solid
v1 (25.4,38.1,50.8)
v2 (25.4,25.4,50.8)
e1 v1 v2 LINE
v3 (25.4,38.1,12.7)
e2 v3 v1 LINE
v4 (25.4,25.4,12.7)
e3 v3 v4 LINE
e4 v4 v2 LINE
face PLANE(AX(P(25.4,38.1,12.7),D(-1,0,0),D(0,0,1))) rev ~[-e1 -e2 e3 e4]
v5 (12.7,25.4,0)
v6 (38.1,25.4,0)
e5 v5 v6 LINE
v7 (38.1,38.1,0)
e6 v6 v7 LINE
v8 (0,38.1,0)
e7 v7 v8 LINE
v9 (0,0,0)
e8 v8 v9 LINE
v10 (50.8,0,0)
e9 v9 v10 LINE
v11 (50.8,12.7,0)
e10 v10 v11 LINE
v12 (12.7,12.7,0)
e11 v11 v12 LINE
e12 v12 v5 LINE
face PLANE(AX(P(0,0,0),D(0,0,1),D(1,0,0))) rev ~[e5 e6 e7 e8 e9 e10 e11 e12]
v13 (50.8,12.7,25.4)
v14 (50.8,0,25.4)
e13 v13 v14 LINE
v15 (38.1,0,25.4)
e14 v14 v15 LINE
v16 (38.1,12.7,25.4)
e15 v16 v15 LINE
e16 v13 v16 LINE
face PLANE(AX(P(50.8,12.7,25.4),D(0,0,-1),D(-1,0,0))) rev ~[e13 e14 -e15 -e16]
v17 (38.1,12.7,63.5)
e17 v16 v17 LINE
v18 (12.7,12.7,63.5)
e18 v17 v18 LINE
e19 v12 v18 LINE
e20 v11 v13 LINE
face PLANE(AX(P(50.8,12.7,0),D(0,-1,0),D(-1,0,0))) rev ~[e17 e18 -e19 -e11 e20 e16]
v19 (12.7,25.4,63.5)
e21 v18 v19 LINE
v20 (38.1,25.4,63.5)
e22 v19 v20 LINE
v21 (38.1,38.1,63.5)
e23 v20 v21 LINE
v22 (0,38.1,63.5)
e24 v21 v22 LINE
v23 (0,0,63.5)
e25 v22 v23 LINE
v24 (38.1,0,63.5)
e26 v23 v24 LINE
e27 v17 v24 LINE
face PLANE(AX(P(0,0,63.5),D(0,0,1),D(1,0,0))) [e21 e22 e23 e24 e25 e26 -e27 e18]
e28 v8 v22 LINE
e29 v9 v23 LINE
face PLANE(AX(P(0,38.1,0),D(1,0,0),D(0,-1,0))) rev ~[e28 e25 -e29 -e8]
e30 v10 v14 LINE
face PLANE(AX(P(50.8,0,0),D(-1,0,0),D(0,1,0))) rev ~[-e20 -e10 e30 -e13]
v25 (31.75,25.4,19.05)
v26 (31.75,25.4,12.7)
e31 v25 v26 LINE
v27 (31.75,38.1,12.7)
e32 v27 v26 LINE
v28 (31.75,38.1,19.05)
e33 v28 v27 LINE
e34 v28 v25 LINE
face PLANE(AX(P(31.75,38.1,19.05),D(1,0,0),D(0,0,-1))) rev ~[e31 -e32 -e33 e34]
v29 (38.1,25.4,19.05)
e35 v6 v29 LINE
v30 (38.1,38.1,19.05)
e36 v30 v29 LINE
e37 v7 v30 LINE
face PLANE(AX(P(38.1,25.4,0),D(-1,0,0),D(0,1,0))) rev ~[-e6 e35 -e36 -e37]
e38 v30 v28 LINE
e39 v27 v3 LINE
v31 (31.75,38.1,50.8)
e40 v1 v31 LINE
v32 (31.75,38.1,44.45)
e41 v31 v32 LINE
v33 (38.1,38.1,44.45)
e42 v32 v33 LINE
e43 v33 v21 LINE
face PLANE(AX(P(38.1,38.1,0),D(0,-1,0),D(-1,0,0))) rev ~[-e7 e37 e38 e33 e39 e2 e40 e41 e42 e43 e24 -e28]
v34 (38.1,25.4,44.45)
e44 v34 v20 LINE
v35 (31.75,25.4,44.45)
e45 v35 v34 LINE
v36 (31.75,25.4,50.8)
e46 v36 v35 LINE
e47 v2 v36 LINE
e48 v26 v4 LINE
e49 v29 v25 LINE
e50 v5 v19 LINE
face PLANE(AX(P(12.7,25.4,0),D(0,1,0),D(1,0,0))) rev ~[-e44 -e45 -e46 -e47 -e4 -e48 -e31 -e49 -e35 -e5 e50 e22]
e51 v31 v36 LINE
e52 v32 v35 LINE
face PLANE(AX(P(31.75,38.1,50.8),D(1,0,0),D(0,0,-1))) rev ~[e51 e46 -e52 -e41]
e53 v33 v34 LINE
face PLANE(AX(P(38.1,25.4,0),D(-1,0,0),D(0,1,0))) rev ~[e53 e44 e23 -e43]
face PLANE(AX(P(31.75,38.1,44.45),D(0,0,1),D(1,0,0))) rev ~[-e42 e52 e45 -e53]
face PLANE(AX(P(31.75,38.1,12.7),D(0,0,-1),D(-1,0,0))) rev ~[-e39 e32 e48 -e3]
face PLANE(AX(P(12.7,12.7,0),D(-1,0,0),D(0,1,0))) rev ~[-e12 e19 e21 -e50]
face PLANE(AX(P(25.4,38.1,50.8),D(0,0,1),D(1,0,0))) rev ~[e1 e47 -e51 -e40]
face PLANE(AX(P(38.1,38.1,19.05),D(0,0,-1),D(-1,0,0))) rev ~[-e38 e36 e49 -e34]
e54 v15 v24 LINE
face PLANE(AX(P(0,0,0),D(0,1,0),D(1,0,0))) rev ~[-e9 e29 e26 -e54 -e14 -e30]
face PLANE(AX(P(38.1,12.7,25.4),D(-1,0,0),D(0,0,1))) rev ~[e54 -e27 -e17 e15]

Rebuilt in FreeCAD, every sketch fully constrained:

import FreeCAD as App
import Part
import Sketcher
from FreeCAD import Vector
Q = App.Units.Quantity

doc = App.newDocument("Part")
params = doc.addObject("Spreadsheet::Sheet", "Params")
for row, (alias, value) in enumerate([
    ("sketch1_width", "2 in"),
    ("sketch1_width2", "1 in"),
    ("pad1_length", "2.5 in"),
    ("sketch2_width", "0.5 in"),
    ("sketch2_height", "1.5 in"),
    ("pocket1_length", "0.5 in"),
    ("sketch3_height", "1 in"),
    ("sketch3_height2", "1.5 in"),
    ("pocket2_length", "0.5 in"),
], start=1):
    params.set(f"A{row}", alias)
    params.set(f"B{row}", "=" + value)
    params.setAlias(f"B{row}", alias)

body = doc.addObject("PartDesign::Body", "Body")

# Sketch on XY plane
sketch1 = doc.addObject("Sketcher::SketchObject", "Sketch")
body.addObject(sketch1)
sketch1.AttachmentSupport = (doc.XY_Plane, [""])
sketch1.MapMode = "FlatFace"
sketch1.addGeometry([
    Part.LineSegment(Vector(0, 38, 0), Vector(0, 0, 0)),  # 0
    Part.LineSegment(Vector(0, 0, 0), Vector(51, 0, 0)),  # 1
    Part.LineSegment(Vector(51, 0, 0), Vector(51, 13, 0)),  # 2
    Part.LineSegment(Vector(51, 13, 0), Vector(13, 13, 0)),  # 3
    Part.LineSegment(Vector(13, 13, 0), Vector(13, 25, 0)),  # 4
    Part.LineSegment(Vector(13, 25, 0), Vector(38, 25, 0)),  # 5
    Part.LineSegment(Vector(38, 25, 0), Vector(38, 38, 0)),  # 6
    Part.LineSegment(Vector(38, 38, 0), Vector(0, 38, 0)),  # 7
], False)
sketch1.addConstraint([
    Sketcher.Constraint("Coincident", 0, 2, 1, 1),
    Sketcher.Constraint("Coincident", 1, 2, 2, 1),
    Sketcher.Constraint("Coincident", 2, 2, 3, 1),
    Sketcher.Constraint("Coincident", 3, 2, 4, 1),
    Sketcher.Constraint("Coincident", 4, 2, 5, 1),
    Sketcher.Constraint("Coincident", 5, 2, 6, 1),
    Sketcher.Constraint("Coincident", 6, 2, 7, 1),
    Sketcher.Constraint("Coincident", 7, 2, 0, 1),
    Sketcher.Constraint("Vertical", 0),
    Sketcher.Constraint("Horizontal", 1),
    Sketcher.Constraint("Vertical", 2),
    Sketcher.Constraint("Horizontal", 3),
    Sketcher.Constraint("Vertical", 4),
    Sketcher.Constraint("Horizontal", 5),
    Sketcher.Constraint("Vertical", 6),
    Sketcher.Constraint("Horizontal", 7),
    Sketcher.Constraint("Coincident", 0, 2, -1, 1),
    Sketcher.Constraint("Equal", 3, 7),
    Sketcher.Constraint("Equal", 7, 0),
    Sketcher.Constraint("Equal", 2, 4),
    Sketcher.Constraint("Equal", 4, 6),
    Sketcher.Constraint("DistanceX", 1, 1, 1, 2, Q("2 in")),
    Sketcher.Constraint("DistanceX", 5, 1, 5, 2, Q("1 in")),
])
sketch1.setExpression("Constraints[21]", "Params.sketch1_width")
sketch1.setExpression("Constraints[22]", "Params.sketch1_width2")
pad1 = doc.addObject("PartDesign::Pad", "Pad")
body.addObject(pad1)
pad1.Profile = sketch1
pad1.setExpression("Length", "Params.pad1_length")

# Sketch on XZ plane
sketch2 = doc.addObject("Sketcher::SketchObject", "Sketch001")
body.addObject(sketch2)
sketch2.AttachmentSupport = (doc.XZ_Plane, [""])
sketch2.MapMode = "FlatFace"
sketch2.AttachmentOffset = App.Placement(Vector(0, 0, -0.5 * 25.4), App.Rotation())
sketch2.addGeometry([
    Part.LineSegment(Vector(51, 64, 0), Vector(51, 25, 0)),
    Part.LineSegment(Vector(51, 25, 0), Vector(38, 25, 0)),
    Part.LineSegment(Vector(38, 25, 0), Vector(38, 64, 0)),
    Part.LineSegment(Vector(38, 64, 0), Vector(51, 64, 0)),
], False)
sketch2.addConstraint([
    Sketcher.Constraint("Coincident", 0, 2, 1, 1),
    Sketcher.Constraint("Coincident", 1, 2, 2, 1),
    Sketcher.Constraint("Coincident", 2, 2, 3, 1),
    Sketcher.Constraint("Coincident", 3, 2, 0, 1),
    Sketcher.Constraint("Vertical", 0),
    Sketcher.Constraint("Horizontal", 1),
    Sketcher.Constraint("Vertical", 2),
    Sketcher.Constraint("Horizontal", 3),
    Sketcher.Constraint("DistanceX", 1, 2, 1, 1, Q("0.5 in")),
    Sketcher.Constraint("DistanceY", 0, 2, 0, 1, Q("1.5 in")),
    Sketcher.Constraint("DistanceX", -1, 1, 0, 2, Q("2 in")),
    Sketcher.Constraint("DistanceY", -1, 1, 0, 2, Q("1 in")),
])
sketch2.setExpression("Constraints[8]", "Params.sketch2_width")
sketch2.setExpression("Constraints[9]", "Params.sketch2_height")
pocket1 = doc.addObject("PartDesign::Pocket", "Pocket")
body.addObject(pocket1)
pocket1.Profile = sketch2
pocket1.setExpression("Length", "Params.pocket1_length")
pocket1.Reversed = True

# Sketch on XZ plane
sketch3 = doc.addObject("Sketcher::SketchObject", "Sketch002")
body.addObject(sketch3)
sketch3.AttachmentSupport = (doc.XZ_Plane, [""])
sketch3.MapMode = "FlatFace"
sketch3.AttachmentOffset = App.Placement(Vector(0, 0, -1.5 * 25.4), App.Rotation())
sketch3.addGeometry([
    Part.LineSegment(Vector(38, 44, 0), Vector(38, 19, 0)),  # 0
    Part.LineSegment(Vector(38, 19, 0), Vector(32, 19, 0)),  # 1
    Part.LineSegment(Vector(32, 19, 0), Vector(32, 13, 0)),  # 2
    Part.LineSegment(Vector(32, 13, 0), Vector(25, 13, 0)),  # 3
    Part.LineSegment(Vector(25, 13, 0), Vector(25, 51, 0)),  # 4
    Part.LineSegment(Vector(25, 51, 0), Vector(32, 51, 0)),  # 5
    Part.LineSegment(Vector(32, 51, 0), Vector(32, 44, 0)),  # 6
    Part.LineSegment(Vector(32, 44, 0), Vector(38, 44, 0)),  # 7
], False)
sketch3.addConstraint([
    Sketcher.Constraint("Coincident", 0, 2, 1, 1),
    Sketcher.Constraint("Coincident", 1, 2, 2, 1),
    Sketcher.Constraint("Coincident", 2, 2, 3, 1),
    Sketcher.Constraint("Coincident", 3, 2, 4, 1),
    Sketcher.Constraint("Coincident", 4, 2, 5, 1),
    Sketcher.Constraint("Coincident", 5, 2, 6, 1),
    Sketcher.Constraint("Coincident", 6, 2, 7, 1),
    Sketcher.Constraint("Coincident", 7, 2, 0, 1),
    Sketcher.Constraint("Vertical", 0),
    Sketcher.Constraint("Horizontal", 1),
    Sketcher.Constraint("Vertical", 2),
    Sketcher.Constraint("Horizontal", 3),
    Sketcher.Constraint("Vertical", 4),
    Sketcher.Constraint("Horizontal", 5),
    Sketcher.Constraint("Vertical", 6),
    Sketcher.Constraint("Horizontal", 7),
    Sketcher.Constraint("Vertical", 2, 2, 5, 2),
    Sketcher.Constraint("Equal", 1, 3),
    Sketcher.Constraint("Equal", 7, 2),
    Sketcher.Constraint("Equal", 2, 6),
    Sketcher.Constraint("DistanceY", 0, 2, 0, 1, Q("1 in")),
    Sketcher.Constraint("DistanceY", 4, 1, 4, 2, Q("1.5 in")),
    Sketcher.Constraint("DistanceX", -1, 1, 3, 2, Q("1 in")),
    Sketcher.Constraint("DistanceY", -1, 1, 4, 2, Q("2 in")),
])
sketch3.setExpression("Constraints[20]", "Params.sketch3_height")
sketch3.setExpression("Constraints[21]", "Params.sketch3_height2")
pocket2 = doc.addObject("PartDesign::Pocket", "Pocket001")
body.addObject(pocket2)
pocket2.Profile = sketch3
pocket2.setExpression("Length", "Params.pocket2_length")
pocket2.Reversed = True

doc.recompute()
